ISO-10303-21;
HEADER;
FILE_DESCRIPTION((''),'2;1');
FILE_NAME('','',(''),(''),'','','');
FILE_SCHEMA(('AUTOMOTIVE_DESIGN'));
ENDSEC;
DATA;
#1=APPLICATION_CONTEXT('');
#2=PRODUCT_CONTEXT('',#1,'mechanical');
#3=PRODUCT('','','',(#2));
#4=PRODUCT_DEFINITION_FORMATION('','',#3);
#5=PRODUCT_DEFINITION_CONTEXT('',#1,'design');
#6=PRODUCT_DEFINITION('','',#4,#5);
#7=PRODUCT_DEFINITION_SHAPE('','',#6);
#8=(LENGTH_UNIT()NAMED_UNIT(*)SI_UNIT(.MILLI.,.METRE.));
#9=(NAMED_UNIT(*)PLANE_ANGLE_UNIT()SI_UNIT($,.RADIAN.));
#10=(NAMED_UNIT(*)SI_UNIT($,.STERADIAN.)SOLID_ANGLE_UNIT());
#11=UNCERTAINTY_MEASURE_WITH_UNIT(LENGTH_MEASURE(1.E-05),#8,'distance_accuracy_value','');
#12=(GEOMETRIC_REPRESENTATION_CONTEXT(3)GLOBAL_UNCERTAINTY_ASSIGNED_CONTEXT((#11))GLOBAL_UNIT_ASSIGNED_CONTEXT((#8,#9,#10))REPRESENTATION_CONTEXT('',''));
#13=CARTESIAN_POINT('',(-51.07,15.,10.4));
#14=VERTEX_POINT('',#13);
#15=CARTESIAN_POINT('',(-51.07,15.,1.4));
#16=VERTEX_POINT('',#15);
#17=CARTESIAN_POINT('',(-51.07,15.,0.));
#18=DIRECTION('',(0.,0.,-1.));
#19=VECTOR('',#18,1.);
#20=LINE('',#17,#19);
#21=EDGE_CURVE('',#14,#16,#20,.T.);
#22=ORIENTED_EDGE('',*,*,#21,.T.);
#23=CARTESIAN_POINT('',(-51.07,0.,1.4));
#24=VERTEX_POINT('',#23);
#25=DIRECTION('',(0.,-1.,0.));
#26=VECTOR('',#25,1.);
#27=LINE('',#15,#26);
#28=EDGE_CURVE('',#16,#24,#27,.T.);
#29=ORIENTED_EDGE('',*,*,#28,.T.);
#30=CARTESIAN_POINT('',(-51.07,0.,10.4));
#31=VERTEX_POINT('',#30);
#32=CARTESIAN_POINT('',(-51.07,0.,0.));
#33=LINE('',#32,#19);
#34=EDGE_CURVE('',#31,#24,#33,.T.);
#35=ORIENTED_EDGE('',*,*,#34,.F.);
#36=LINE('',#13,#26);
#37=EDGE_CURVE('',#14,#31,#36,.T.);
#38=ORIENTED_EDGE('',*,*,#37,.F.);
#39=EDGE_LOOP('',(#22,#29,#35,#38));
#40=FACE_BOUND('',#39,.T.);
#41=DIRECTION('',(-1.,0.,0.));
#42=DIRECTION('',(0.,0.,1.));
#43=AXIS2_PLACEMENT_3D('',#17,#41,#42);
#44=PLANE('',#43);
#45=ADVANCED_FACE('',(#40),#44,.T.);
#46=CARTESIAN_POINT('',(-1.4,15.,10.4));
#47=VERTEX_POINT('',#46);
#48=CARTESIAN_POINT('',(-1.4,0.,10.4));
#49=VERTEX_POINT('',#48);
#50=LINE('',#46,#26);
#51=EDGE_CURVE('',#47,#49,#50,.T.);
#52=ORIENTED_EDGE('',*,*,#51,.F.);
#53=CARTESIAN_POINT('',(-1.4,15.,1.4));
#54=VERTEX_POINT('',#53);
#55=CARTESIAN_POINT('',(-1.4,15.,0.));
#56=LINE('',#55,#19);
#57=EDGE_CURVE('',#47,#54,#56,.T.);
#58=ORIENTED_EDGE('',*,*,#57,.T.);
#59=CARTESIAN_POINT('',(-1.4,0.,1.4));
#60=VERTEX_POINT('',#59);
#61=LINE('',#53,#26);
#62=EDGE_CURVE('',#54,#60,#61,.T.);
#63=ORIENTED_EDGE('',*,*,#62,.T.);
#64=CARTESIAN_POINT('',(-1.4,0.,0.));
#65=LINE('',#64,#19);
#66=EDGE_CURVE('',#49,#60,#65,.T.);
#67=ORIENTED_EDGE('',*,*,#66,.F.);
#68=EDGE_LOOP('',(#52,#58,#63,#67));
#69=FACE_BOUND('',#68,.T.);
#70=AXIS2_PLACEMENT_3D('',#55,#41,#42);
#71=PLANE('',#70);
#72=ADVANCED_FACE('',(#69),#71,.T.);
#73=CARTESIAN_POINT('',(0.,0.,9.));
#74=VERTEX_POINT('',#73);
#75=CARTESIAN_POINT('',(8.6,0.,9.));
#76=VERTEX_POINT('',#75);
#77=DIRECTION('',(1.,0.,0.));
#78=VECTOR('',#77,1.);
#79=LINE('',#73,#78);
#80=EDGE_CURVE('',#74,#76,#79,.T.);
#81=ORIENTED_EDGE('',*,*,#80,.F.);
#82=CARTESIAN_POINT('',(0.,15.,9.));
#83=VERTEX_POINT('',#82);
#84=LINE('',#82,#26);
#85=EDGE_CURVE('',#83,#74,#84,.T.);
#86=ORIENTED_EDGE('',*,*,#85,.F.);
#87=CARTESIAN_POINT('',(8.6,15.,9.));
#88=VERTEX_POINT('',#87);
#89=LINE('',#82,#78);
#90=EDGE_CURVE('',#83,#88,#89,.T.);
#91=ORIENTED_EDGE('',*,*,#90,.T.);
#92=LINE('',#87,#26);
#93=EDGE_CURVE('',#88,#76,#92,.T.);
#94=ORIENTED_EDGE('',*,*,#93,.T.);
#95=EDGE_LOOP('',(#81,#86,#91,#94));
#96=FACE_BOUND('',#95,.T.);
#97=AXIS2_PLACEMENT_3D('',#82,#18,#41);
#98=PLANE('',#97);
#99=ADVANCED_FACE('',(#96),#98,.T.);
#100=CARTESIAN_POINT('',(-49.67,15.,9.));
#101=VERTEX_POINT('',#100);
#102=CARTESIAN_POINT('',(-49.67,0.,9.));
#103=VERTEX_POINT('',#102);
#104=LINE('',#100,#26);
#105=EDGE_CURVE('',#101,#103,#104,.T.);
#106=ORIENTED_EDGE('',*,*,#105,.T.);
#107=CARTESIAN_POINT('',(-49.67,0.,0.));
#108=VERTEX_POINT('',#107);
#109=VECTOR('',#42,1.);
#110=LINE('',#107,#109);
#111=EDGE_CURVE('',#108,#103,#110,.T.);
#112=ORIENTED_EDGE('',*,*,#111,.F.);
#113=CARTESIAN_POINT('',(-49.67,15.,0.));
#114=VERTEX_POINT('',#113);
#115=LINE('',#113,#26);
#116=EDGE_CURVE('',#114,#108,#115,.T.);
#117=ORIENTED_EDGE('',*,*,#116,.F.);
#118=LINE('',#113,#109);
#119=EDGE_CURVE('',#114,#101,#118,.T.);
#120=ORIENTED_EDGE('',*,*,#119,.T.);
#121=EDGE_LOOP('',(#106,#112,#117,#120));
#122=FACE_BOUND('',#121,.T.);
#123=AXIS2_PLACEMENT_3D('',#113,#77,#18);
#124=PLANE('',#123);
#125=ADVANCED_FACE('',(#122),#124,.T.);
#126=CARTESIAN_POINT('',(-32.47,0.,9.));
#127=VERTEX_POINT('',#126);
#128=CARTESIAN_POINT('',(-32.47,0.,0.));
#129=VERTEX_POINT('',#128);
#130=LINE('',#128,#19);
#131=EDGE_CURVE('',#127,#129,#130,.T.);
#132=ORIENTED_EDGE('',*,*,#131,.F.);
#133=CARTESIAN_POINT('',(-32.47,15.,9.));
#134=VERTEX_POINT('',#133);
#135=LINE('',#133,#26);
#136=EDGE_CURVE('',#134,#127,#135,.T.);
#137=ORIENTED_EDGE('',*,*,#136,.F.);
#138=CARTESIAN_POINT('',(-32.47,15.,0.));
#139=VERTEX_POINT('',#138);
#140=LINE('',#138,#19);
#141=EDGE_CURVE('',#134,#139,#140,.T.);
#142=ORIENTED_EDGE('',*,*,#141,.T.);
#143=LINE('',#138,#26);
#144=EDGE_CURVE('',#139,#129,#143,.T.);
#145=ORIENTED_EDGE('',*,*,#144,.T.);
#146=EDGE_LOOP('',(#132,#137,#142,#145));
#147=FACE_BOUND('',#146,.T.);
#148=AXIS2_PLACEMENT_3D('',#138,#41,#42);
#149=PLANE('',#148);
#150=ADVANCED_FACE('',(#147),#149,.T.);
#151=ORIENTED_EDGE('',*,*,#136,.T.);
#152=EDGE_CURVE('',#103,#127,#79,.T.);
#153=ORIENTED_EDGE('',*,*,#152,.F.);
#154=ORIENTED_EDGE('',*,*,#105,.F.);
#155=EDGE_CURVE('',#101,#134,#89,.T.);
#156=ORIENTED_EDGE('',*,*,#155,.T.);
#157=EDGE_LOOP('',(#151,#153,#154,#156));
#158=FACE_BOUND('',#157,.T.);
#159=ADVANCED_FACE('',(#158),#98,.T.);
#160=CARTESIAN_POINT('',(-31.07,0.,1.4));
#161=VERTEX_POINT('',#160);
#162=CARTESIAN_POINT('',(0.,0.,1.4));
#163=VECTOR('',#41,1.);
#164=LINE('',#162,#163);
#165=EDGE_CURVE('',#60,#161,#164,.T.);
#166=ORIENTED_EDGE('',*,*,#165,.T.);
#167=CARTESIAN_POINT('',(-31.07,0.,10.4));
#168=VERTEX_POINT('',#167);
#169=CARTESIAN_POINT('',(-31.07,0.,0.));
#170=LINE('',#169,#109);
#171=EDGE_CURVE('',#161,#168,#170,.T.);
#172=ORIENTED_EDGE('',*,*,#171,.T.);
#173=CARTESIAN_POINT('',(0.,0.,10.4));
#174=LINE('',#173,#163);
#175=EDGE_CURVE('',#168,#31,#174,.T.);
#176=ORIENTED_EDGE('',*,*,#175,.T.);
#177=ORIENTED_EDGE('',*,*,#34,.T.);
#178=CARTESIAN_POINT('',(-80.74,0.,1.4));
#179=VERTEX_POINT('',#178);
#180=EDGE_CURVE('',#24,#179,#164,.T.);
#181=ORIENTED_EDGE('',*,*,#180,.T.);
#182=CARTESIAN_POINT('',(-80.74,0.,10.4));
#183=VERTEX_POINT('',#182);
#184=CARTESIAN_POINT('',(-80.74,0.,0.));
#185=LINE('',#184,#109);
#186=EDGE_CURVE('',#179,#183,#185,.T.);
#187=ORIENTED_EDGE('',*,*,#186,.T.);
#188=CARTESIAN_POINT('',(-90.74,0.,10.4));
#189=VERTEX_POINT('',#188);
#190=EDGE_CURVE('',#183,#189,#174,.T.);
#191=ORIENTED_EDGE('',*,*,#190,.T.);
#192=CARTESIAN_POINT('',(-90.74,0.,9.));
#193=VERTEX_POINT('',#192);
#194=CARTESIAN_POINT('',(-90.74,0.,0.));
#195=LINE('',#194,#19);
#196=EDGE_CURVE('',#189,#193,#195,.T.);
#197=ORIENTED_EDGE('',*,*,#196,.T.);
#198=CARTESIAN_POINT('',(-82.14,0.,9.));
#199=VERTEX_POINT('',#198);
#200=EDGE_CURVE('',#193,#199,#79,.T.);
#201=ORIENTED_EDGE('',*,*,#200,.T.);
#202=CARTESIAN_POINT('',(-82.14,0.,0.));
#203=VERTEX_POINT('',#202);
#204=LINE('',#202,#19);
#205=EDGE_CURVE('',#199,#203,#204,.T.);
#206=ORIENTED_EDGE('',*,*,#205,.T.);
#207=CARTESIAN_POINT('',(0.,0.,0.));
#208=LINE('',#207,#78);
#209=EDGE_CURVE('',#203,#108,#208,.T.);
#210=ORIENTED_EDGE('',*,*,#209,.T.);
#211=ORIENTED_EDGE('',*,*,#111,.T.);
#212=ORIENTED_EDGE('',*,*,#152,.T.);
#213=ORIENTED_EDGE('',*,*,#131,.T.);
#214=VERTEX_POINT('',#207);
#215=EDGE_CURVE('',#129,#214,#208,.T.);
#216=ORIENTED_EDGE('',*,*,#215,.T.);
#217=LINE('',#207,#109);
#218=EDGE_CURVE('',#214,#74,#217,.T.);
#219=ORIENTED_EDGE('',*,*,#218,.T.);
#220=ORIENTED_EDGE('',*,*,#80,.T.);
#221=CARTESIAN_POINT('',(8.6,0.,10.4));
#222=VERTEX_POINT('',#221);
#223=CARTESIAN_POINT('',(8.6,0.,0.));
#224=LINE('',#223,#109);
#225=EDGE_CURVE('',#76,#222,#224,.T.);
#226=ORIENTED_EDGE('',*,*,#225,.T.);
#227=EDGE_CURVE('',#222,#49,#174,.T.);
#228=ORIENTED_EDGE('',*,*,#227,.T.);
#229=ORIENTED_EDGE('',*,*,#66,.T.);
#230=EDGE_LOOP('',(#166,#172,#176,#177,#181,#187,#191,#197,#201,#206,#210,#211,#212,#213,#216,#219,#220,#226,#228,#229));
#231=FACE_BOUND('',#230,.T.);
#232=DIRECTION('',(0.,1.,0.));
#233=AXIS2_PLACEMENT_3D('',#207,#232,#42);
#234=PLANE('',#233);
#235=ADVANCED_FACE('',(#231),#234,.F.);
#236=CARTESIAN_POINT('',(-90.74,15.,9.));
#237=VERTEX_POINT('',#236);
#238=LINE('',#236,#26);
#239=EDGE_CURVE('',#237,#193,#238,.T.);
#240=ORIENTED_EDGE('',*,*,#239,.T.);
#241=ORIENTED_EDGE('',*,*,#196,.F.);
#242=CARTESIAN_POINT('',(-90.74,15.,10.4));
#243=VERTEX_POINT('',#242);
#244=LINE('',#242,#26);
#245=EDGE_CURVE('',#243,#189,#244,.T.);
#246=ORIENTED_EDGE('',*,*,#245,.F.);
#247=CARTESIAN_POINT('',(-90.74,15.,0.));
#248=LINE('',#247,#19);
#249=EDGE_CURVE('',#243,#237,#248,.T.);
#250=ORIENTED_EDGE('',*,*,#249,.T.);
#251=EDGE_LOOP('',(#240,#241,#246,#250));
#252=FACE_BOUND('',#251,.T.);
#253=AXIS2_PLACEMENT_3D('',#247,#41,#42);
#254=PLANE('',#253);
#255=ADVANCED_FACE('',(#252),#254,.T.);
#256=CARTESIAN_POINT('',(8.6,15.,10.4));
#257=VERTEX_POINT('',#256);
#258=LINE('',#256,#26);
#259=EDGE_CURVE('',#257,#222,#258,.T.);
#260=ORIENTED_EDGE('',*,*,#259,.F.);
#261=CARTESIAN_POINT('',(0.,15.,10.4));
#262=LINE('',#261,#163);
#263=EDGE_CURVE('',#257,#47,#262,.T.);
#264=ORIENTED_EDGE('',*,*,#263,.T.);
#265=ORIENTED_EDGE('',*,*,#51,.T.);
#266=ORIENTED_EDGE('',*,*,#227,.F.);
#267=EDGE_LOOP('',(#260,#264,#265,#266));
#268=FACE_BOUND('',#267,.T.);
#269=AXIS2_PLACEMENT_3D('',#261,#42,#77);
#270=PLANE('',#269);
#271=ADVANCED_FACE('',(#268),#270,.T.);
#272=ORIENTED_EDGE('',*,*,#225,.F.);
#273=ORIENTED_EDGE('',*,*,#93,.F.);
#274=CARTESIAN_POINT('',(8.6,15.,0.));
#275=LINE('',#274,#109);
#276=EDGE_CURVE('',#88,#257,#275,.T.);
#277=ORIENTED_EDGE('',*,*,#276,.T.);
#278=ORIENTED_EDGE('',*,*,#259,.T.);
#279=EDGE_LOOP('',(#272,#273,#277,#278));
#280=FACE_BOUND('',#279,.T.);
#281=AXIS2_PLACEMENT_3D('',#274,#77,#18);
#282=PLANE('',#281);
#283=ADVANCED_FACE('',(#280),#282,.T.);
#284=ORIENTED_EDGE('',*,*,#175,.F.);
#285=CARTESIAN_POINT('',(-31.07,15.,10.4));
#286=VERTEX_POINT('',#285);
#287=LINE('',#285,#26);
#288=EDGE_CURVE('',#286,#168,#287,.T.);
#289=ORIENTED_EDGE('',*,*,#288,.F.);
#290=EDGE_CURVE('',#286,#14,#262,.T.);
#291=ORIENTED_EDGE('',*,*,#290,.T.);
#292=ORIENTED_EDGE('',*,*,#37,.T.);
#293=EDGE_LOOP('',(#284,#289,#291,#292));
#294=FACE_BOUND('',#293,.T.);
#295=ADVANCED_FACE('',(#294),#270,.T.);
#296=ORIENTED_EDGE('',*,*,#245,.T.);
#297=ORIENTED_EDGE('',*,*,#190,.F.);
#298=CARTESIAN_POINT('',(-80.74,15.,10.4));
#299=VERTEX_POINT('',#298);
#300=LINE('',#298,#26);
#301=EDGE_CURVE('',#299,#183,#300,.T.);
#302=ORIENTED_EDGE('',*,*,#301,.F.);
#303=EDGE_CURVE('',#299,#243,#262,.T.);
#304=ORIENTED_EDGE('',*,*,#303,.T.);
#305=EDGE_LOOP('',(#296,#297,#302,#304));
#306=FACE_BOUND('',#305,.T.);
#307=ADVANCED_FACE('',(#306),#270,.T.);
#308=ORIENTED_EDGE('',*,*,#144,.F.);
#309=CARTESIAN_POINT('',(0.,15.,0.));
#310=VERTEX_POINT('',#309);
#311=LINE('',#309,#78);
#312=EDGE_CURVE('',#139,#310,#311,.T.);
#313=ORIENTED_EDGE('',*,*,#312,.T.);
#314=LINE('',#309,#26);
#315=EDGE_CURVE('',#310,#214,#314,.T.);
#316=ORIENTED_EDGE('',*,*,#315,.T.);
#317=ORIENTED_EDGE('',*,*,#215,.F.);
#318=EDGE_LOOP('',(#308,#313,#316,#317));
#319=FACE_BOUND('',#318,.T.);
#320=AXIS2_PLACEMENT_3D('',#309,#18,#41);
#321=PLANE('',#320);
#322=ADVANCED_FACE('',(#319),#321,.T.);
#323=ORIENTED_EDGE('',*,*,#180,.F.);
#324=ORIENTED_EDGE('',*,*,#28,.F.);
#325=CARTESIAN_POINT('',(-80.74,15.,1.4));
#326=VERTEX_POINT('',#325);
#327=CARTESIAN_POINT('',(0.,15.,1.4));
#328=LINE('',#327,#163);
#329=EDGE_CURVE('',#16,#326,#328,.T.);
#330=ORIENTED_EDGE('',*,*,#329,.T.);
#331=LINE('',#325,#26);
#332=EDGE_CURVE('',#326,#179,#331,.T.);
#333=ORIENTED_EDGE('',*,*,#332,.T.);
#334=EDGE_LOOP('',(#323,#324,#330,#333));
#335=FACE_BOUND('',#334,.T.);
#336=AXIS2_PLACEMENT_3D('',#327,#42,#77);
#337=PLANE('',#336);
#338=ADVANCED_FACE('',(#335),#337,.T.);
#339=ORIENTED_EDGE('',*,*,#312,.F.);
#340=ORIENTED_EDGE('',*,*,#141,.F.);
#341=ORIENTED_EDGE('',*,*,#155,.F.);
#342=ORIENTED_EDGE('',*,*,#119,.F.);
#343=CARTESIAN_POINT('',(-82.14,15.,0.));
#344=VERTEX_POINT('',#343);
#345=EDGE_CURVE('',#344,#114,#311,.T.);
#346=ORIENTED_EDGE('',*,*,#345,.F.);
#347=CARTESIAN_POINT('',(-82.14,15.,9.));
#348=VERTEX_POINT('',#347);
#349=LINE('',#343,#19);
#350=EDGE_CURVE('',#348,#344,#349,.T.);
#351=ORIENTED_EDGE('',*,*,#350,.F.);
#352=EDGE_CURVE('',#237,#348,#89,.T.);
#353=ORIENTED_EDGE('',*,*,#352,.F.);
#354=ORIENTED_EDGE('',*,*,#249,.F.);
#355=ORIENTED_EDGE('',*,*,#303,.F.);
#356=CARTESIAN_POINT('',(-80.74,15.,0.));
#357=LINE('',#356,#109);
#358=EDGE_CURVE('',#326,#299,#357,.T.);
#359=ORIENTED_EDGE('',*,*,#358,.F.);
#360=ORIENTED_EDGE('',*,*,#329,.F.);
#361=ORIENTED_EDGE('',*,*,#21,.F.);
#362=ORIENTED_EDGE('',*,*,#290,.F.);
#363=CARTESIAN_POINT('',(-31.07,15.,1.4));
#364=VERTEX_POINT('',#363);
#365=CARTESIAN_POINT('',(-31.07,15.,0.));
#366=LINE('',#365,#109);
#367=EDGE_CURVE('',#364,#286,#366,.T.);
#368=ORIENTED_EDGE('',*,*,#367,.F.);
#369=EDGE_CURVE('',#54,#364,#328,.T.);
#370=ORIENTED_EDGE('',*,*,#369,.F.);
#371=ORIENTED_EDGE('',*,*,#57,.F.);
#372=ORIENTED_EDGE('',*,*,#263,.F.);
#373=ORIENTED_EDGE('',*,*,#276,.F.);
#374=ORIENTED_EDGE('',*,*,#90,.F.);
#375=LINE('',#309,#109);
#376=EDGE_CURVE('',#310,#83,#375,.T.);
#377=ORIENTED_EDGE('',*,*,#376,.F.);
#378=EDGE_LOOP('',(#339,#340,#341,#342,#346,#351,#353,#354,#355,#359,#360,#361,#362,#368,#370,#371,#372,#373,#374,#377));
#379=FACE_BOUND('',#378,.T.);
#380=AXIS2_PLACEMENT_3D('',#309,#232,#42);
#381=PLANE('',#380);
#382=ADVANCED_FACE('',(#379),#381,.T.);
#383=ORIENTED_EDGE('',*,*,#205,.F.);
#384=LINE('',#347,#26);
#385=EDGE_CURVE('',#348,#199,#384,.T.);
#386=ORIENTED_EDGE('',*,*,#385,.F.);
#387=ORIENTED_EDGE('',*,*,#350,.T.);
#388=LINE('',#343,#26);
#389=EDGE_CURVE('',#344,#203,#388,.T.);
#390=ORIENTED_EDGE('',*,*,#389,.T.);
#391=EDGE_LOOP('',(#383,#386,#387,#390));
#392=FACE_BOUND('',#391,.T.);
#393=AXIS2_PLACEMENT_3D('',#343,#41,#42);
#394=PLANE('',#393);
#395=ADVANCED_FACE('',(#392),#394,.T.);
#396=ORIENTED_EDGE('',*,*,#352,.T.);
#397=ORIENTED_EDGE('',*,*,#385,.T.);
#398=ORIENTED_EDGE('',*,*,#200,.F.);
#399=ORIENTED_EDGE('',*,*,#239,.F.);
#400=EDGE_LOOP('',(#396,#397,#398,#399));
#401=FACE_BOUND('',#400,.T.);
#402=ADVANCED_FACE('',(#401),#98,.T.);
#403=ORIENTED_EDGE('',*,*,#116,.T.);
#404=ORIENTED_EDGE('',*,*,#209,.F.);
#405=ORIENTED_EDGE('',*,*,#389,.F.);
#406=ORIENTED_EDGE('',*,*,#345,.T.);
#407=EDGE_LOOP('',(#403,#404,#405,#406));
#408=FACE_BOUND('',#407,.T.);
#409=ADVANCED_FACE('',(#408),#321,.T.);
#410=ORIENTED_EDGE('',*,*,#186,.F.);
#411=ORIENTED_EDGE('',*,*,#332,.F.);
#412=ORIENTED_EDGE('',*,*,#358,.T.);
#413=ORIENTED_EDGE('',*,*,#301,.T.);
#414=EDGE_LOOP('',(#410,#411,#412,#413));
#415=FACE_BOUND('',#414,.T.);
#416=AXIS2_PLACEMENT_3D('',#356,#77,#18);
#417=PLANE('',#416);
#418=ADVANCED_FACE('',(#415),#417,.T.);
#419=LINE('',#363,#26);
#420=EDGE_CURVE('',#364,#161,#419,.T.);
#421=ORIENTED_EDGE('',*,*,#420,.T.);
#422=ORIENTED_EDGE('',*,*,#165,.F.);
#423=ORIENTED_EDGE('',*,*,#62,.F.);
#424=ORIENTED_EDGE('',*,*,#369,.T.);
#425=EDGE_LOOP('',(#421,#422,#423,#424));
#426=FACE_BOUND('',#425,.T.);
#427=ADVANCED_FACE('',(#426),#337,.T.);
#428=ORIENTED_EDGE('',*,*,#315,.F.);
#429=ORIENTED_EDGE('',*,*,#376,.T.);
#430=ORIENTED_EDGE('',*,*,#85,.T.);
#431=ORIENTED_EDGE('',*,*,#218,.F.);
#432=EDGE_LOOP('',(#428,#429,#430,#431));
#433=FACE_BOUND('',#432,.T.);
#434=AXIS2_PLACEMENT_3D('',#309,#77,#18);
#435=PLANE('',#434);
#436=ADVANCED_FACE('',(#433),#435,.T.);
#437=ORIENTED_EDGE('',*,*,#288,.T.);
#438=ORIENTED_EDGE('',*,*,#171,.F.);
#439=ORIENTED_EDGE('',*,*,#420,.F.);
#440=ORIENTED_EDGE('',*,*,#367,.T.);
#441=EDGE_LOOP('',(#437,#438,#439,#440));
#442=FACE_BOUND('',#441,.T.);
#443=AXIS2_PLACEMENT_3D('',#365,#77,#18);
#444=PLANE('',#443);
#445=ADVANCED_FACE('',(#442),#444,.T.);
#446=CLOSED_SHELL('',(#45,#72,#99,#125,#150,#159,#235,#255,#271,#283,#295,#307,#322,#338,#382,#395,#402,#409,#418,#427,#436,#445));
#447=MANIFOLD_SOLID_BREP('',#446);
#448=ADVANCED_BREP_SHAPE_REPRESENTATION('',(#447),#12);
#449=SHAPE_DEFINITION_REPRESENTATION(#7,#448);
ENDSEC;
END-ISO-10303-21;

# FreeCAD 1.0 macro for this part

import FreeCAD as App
import Part
import Sketcher

V = App.Vector

doc = App.newDocument("Part")
body = doc.addObject("PartDesign::Body", "Body")

sketch1 = body.newObject("Sketcher::SketchObject", "Sketch")
sketch1.AttachmentSupport = (doc.getObject("XZ_Plane"), [""])
sketch1.MapMode = "FlatFace"
sketch1.addGeometry(Part.LineSegment(V(0, 9, 0), V(0, 0, 0)), False)
sketch1.addGeometry(Part.LineSegment(V(0, 0, 0), V(-32.47, 0, 0)), False)
sketch1.addGeometry(Part.LineSegment(V(-32.47, 0, 0), V(-32.47, 9, 0)), False)
sketch1.addGeometry(Part.LineSegment(V(-32.47, 9, 0), V(-49.67, 9, 0)), False)
sketch1.addGeometry(Part.LineSegment(V(-49.67, 9, 0), V(-49.67, 0, 0)), False)
sketch1.addGeometry(Part.LineSegment(V(-49.67, 0, 0), V(-82.14, 0, 0)), False)
sketch1.addGeometry(Part.LineSegment(V(-82.14, 0, 0), V(-82.14, 9, 0)), False)
sketch1.addGeometry(Part.LineSegment(V(-82.14, 9, 0), V(-90.74, 9, 0)), False)
sketch1.addGeometry(Part.LineSegment(V(-90.74, 9, 0), V(-90.74, 10.4, 0)), False)
sketch1.addGeometry(Part.LineSegment(V(-90.74, 10.4, 0), V(-80.74, 10.4, 0)), False)
sketch1.addGeometry(Part.LineSegment(V(-80.74, 10.4, 0), V(-80.74, 1.4, 0)), False)
sketch1.addGeometry(Part.LineSegment(V(-80.74, 1.4, 0), V(-51.07, 1.4, 0)), False)
sketch1.addGeometry(Part.LineSegment(V(-51.07, 1.4, 0), V(-51.07, 10.4, 0)), False)
sketch1.addGeometry(Part.LineSegment(V(-51.07, 10.4, 0), V(-31.07, 10.4, 0)), False)
sketch1.addGeometry(Part.LineSegment(V(-31.07, 10.4, 0), V(-31.07, 1.4, 0)), False)
sketch1.addGeometry(Part.LineSegment(V(-31.07, 1.4, 0), V(-1.4, 1.4, 0)), False)
sketch1.addGeometry(Part.LineSegment(V(-1.4, 1.4, 0), V(-1.4, 10.4, 0)), False)
sketch1.addGeometry(Part.LineSegment(V(-1.4, 10.4, 0), V(8.6, 10.4, 0)), False)
sketch1.addGeometry(Part.LineSegment(V(8.6, 10.4, 0), V(8.6, 9, 0)), False)
sketch1.addGeometry(Part.LineSegment(V(8.6, 9, 0), V(0, 9, 0)), False)
sketch1.addConstraint(Sketcher.Constraint("Coincident", 0, 2, 1, 1))
sketch1.addConstraint(Sketcher.Constraint("Coincident", 1, 2, 2, 1))
sketch1.addConstraint(Sketcher.Constraint("Coincident", 2, 2, 3, 1))
sketch1.addConstraint(Sketcher.Constraint("Coincident", 3, 2, 4, 1))
sketch1.addConstraint(Sketcher.Constraint("Coincident", 4, 2, 5, 1))
sketch1.addConstraint(Sketcher.Constraint("Coincident", 5, 2, 6, 1))
sketch1.addConstraint(Sketcher.Constraint("Coincident", 6, 2, 7, 1))
sketch1.addConstraint(Sketcher.Constraint("Coincident", 7, 2, 8, 1))
sketch1.addConstraint(Sketcher.Constraint("Coincident", 8, 2, 9, 1))
sketch1.addConstraint(Sketcher.Constraint("Coincident", 9, 2, 10, 1))
sketch1.addConstraint(Sketcher.Constraint("Coincident", 10, 2, 11, 1))
sketch1.addConstraint(Sketcher.Constraint("Coincident", 11, 2, 12, 1))
sketch1.addConstraint(Sketcher.Constraint("Coincident", 12, 2, 13, 1))
sketch1.addConstraint(Sketcher.Constraint("Coincident", 13, 2, 14, 1))
sketch1.addConstraint(Sketcher.Constraint("Coincident", 14, 2, 15, 1))
sketch1.addConstraint(Sketcher.Constraint("Coincident", 15, 2, 16, 1))
sketch1.addConstraint(Sketcher.Constraint("Coincident", 16, 2, 17, 1))
sketch1.addConstraint(Sketcher.Constraint("Coincident", 17, 2, 18, 1))
sketch1.addConstraint(Sketcher.Constraint("Coincident", 18, 2, 19, 1))
sketch1.addConstraint(Sketcher.Constraint("Coincident", 19, 2, 0, 1))
sketch1.addConstraint(Sketcher.Constraint("Vertical", 0))
sketch1.addConstraint(Sketcher.Constraint("Horizontal", 1))
sketch1.addConstraint(Sketcher.Constraint("Vertical", 2))
sketch1.addConstraint(Sketcher.Constraint("Horizontal", 3))
sketch1.addConstraint(Sketcher.Constraint("Vertical", 4))
sketch1.addConstraint(Sketcher.Constraint("Horizontal", 5))
sketch1.addConstraint(Sketcher.Constraint("Vertical", 6))
sketch1.addConstraint(Sketcher.Constraint("Horizontal", 7))
sketch1.addConstraint(Sketcher.Constraint("Vertical", 8))
sketch1.addConstraint(Sketcher.Constraint("Horizontal", 9))
sketch1.addConstraint(Sketcher.Constraint("Vertical", 10))
sketch1.addConstraint(Sketcher.Constraint("Horizontal", 11))
sketch1.addConstraint(Sketcher.Constraint("Vertical", 12))
sketch1.addConstraint(Sketcher.Constraint("Horizontal", 13))
sketch1.addConstraint(Sketcher.Constraint("Vertical", 14))
sketch1.addConstraint(Sketcher.Constraint("Horizontal", 15))
sketch1.addConstraint(Sketcher.Constraint("Vertical", 16))
sketch1.addConstraint(Sketcher.Constraint("Horizontal", 17))
sketch1.addConstraint(Sketcher.Constraint("Vertical", 18))
sketch1.addConstraint(Sketcher.Constraint("Horizontal", 19))
sketch1.addConstraint(Sketcher.Constraint("Coincident", 0, 2, -1, 1))
sketch1.addConstraint(Sketcher.Constraint("PointOnObject", 4, 2, -1))
sketch1.addConstraint(Sketcher.Constraint("Horizontal", 3, 2, 6, 2))
sketch1.addConstraint(Sketcher.Constraint("Horizontal", 9, 2, 12, 2))
sketch1.addConstraint(Sketcher.Constraint("Horizontal", 11, 2, 14, 2))
sketch1.addConstraint(Sketcher.Constraint("Horizontal", 13, 2, 16, 2))
sketch1.addConstraint(Sketcher.Constraint("Horizontal", 7, 2, 18, 2))
sketch1.addConstraint(Sketcher.Constraint("Equal", 1, 5))
sketch1.addConstraint(Sketcher.Constraint("Equal", 11, 15))
sketch1.addConstraint(Sketcher.Constraint("Equal", 9, 17))
sketch1.addConstraint(Sketcher.Constraint("Equal", 7, 19))
sketch1.addConstraint(Sketcher.Constraint("Equal", 6, 10))
sketch1.addConstraint(Sketcher.Constraint("DistanceX", 9, 1, 9, 2, 10.0))
sketch1.addConstraint(Sketcher.Constraint("DistanceX", 13, 1, 13, 2, 20.0))
sketch1.addConstraint(Sketcher.Constraint("DistanceY", 0, 2, 0, 1, 9.0))
sketch1.addConstraint(Sketcher.Constraint("DistanceX", 3, 2, 3, 1, 17.2))
sketch1.addConstraint(Sketcher.Constraint("DistanceX", 7, 2, 7, 1, 8.6))
sketch1.addConstraint(Sketcher.Constraint("DistanceY", 8, 1, 8, 2, 1.4))
sketch1.addConstraint(Sketcher.Constraint("DistanceX", 1, 2, 1, 1, 32.47))
pad1 = body.newObject("PartDesign::Pad", "Pad")
pad1.Profile = sketch1
pad1.Length = 15
pad1.Reversed = True

doc.recompute()
